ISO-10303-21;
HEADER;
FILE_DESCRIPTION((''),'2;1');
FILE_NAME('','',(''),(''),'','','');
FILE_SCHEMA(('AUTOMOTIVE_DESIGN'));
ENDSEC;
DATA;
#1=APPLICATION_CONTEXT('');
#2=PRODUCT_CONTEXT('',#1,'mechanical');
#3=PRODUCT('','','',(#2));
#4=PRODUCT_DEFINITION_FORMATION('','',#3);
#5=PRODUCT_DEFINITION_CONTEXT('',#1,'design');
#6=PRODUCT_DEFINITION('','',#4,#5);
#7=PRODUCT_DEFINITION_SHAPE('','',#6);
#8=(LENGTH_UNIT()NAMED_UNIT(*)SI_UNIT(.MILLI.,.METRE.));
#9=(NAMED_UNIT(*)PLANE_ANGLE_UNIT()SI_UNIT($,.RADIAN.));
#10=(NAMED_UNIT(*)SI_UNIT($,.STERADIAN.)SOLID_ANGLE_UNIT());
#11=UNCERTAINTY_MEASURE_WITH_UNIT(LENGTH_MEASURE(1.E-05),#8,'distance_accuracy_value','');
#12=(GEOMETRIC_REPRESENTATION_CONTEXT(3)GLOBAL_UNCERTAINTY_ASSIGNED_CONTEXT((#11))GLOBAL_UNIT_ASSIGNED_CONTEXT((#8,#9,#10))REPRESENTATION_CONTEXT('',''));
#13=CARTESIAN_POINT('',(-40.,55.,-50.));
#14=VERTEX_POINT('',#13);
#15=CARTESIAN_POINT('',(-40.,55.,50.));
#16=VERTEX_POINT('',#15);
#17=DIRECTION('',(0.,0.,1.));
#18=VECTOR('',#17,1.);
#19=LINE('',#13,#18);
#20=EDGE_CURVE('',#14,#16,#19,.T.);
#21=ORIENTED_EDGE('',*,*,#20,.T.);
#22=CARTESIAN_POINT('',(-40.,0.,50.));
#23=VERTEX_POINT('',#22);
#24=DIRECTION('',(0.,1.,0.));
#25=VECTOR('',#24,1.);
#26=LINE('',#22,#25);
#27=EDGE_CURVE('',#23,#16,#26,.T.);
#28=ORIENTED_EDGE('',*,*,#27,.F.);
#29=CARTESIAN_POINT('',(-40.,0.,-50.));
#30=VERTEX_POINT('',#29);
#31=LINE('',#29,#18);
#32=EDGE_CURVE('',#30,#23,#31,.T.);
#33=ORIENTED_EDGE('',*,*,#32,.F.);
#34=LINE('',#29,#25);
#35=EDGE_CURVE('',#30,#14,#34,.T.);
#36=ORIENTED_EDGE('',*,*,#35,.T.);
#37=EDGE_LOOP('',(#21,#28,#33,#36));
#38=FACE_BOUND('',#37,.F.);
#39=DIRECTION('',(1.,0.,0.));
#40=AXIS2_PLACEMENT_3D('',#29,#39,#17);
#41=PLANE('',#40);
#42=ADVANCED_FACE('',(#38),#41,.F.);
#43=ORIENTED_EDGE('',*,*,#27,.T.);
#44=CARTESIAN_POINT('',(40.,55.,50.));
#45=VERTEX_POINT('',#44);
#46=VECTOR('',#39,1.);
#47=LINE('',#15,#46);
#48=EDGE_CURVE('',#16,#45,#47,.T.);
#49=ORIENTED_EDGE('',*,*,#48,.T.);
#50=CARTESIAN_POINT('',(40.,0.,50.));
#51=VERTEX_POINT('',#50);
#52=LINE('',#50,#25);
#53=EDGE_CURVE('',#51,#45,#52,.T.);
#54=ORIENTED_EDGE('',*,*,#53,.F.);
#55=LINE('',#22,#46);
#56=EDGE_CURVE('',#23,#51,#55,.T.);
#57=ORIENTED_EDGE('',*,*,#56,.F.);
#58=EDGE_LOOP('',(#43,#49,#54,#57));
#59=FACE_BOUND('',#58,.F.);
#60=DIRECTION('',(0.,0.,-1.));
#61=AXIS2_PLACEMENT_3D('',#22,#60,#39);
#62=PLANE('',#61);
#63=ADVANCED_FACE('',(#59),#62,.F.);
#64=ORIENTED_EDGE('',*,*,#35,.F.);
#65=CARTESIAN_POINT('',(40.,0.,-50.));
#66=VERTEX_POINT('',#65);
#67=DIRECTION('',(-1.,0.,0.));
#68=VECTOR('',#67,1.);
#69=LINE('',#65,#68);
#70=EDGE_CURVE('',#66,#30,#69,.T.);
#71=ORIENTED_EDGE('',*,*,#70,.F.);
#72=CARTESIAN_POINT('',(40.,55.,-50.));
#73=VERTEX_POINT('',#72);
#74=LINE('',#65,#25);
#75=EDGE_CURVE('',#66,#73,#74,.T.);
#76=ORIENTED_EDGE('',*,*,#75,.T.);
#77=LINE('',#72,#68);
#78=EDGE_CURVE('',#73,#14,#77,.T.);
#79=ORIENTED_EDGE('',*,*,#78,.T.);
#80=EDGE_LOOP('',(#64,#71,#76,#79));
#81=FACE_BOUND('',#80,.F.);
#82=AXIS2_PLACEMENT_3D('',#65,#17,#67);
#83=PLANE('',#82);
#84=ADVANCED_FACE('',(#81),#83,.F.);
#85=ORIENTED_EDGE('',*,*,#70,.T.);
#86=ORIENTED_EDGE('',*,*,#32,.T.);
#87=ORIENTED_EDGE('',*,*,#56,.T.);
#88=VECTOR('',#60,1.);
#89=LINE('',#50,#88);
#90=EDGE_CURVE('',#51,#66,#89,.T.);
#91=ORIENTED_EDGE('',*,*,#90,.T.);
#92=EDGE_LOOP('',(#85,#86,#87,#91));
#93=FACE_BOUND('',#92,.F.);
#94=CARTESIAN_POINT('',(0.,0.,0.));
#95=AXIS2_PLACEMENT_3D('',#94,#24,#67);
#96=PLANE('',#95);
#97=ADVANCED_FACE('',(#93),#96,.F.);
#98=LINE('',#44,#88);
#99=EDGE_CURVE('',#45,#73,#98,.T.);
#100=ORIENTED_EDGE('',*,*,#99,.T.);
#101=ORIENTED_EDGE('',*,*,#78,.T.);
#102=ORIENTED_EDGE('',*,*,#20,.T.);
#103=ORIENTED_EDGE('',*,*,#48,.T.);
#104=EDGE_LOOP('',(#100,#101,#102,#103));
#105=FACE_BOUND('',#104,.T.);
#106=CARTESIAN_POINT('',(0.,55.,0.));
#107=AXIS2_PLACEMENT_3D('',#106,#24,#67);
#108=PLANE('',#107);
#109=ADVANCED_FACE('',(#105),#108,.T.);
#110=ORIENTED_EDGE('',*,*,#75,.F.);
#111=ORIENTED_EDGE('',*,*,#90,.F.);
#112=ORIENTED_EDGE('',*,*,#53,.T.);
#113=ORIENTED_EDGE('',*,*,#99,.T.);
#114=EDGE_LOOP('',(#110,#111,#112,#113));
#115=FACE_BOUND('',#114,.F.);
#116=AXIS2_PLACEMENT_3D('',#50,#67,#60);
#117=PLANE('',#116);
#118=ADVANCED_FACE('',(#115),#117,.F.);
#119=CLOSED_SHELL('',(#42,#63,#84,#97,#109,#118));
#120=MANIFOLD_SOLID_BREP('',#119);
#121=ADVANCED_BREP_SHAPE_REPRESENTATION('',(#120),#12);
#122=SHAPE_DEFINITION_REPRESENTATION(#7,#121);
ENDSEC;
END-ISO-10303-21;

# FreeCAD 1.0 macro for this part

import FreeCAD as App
import Part
import Sketcher

V = App.Vector
Q = App.Units.Quantity


def add_polygon(sketch, points):
    """Adds a closed chain of lines whose ends are joined by coincident constraints."""
    first, n = sketch.GeometryCount, len(points)
    for a, b in zip(points, points[1:] + points[:1]):
        sketch.addGeometry(Part.LineSegment(App.Vector(*a, 0), App.Vector(*b, 0)), False)
    for i in range(n):
        sketch.addConstraint(Sketcher.Constraint("Coincident", first + i, 2, first + (i + 1) % n, 1))

doc = App.newDocument("Part")
body = doc.addObject("PartDesign::Body", "Body")

# Sketch on XZ plane
sketch1 = body.newObject("Sketcher::SketchObject", "Sketch")
sketch1.AttachmentSupport = (doc.getObject("XZ_Plane"), [""])
sketch1.MapMode = "FlatFace"
add_polygon(sketch1, [(40, 50), (40, -50), (-40, -50), (-40, 50)])  # lines 0-3
sketch1.addConstraint([
    Sketcher.Constraint("Vertical", 0),
    Sketcher.Constraint("Horizontal", 1),
    Sketcher.Constraint("Vertical", 2),
    Sketcher.Constraint("Horizontal", 3),
    Sketcher.Constraint("Symmetric", 0, 2, 2, 2, -1, 1),
    Sketcher.Constraint("DistanceX", 1, 2, 1, 1, Q("80 mm")),
    Sketcher.Constraint("DistanceY", 0, 2, 0, 1, Q("100 mm")),
])
pad1 = body.newObject("PartDesign::Pad", "Pad")
pad1.Profile = sketch1
pad1.Length = 55
pad1.Reversed = True

doc.recompute()
